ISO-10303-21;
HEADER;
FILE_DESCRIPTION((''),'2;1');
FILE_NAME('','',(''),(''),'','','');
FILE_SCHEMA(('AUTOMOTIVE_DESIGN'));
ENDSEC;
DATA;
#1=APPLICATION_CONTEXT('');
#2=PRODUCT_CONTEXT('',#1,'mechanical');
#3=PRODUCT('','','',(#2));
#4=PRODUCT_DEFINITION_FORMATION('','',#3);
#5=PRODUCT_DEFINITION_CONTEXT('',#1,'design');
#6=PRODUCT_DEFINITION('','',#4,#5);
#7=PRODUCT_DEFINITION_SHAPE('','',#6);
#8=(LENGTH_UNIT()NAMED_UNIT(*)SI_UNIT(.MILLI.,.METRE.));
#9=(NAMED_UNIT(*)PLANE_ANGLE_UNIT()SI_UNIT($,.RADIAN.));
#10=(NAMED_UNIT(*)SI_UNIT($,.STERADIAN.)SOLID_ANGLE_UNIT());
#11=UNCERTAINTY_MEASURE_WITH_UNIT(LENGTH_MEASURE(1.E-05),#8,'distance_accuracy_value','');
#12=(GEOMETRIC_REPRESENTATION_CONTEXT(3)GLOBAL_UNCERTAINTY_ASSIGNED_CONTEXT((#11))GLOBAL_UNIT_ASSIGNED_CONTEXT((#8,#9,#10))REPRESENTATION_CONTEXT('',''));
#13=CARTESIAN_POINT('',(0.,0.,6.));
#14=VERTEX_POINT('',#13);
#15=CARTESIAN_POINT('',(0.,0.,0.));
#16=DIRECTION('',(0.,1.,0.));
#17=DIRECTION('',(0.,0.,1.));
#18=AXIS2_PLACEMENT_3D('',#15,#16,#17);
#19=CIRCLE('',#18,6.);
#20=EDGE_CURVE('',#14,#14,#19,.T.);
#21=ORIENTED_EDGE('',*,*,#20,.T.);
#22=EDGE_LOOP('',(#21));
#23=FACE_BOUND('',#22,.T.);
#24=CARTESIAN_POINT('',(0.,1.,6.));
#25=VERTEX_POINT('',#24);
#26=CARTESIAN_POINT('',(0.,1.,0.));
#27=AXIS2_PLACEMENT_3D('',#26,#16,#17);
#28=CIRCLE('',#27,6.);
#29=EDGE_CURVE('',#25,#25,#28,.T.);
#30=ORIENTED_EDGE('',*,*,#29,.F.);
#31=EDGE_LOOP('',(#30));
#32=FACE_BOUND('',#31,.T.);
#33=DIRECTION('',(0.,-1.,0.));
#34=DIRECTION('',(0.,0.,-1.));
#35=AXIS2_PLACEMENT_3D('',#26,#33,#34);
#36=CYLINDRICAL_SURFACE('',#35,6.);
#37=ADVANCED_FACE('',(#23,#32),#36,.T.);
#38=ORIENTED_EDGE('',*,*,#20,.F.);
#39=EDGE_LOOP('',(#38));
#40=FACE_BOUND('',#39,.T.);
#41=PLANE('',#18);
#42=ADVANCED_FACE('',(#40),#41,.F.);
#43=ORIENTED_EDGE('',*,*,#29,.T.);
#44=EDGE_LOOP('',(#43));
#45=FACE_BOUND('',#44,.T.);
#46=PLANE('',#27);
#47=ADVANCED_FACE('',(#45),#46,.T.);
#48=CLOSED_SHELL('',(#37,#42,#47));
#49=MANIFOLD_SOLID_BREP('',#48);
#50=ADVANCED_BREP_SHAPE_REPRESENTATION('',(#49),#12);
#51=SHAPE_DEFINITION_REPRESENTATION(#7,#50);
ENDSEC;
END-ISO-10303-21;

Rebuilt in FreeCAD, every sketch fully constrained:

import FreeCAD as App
import Part
import Sketcher

V = App.Vector
Q = App.Units.Quantity

doc = App.newDocument("Part")
body = doc.addObject("PartDesign::Body", "Body")

sketch1 = body.newObject("Sketcher::SketchObject", "Sketch")
sketch1.AttachmentSupport = (doc.getObject("XZ_Plane"), [""])
sketch1.MapMode = "FlatFace"
sketch1.addGeometry(Part.Circle(V(0, 0, 0), V(0, 0, 1), 6), False)
sketch1.addConstraint(Sketcher.Constraint("Coincident", 0, 3, -1, 1))
sketch1.addConstraint(Sketcher.Constraint("Diameter", 0, Q("12 mm")))
pad1 = body.newObject("PartDesign::Pad", "Pad")
pad1.Profile = sketch1
pad1.Length = 1
pad1.Reversed = True

doc.recompute()
